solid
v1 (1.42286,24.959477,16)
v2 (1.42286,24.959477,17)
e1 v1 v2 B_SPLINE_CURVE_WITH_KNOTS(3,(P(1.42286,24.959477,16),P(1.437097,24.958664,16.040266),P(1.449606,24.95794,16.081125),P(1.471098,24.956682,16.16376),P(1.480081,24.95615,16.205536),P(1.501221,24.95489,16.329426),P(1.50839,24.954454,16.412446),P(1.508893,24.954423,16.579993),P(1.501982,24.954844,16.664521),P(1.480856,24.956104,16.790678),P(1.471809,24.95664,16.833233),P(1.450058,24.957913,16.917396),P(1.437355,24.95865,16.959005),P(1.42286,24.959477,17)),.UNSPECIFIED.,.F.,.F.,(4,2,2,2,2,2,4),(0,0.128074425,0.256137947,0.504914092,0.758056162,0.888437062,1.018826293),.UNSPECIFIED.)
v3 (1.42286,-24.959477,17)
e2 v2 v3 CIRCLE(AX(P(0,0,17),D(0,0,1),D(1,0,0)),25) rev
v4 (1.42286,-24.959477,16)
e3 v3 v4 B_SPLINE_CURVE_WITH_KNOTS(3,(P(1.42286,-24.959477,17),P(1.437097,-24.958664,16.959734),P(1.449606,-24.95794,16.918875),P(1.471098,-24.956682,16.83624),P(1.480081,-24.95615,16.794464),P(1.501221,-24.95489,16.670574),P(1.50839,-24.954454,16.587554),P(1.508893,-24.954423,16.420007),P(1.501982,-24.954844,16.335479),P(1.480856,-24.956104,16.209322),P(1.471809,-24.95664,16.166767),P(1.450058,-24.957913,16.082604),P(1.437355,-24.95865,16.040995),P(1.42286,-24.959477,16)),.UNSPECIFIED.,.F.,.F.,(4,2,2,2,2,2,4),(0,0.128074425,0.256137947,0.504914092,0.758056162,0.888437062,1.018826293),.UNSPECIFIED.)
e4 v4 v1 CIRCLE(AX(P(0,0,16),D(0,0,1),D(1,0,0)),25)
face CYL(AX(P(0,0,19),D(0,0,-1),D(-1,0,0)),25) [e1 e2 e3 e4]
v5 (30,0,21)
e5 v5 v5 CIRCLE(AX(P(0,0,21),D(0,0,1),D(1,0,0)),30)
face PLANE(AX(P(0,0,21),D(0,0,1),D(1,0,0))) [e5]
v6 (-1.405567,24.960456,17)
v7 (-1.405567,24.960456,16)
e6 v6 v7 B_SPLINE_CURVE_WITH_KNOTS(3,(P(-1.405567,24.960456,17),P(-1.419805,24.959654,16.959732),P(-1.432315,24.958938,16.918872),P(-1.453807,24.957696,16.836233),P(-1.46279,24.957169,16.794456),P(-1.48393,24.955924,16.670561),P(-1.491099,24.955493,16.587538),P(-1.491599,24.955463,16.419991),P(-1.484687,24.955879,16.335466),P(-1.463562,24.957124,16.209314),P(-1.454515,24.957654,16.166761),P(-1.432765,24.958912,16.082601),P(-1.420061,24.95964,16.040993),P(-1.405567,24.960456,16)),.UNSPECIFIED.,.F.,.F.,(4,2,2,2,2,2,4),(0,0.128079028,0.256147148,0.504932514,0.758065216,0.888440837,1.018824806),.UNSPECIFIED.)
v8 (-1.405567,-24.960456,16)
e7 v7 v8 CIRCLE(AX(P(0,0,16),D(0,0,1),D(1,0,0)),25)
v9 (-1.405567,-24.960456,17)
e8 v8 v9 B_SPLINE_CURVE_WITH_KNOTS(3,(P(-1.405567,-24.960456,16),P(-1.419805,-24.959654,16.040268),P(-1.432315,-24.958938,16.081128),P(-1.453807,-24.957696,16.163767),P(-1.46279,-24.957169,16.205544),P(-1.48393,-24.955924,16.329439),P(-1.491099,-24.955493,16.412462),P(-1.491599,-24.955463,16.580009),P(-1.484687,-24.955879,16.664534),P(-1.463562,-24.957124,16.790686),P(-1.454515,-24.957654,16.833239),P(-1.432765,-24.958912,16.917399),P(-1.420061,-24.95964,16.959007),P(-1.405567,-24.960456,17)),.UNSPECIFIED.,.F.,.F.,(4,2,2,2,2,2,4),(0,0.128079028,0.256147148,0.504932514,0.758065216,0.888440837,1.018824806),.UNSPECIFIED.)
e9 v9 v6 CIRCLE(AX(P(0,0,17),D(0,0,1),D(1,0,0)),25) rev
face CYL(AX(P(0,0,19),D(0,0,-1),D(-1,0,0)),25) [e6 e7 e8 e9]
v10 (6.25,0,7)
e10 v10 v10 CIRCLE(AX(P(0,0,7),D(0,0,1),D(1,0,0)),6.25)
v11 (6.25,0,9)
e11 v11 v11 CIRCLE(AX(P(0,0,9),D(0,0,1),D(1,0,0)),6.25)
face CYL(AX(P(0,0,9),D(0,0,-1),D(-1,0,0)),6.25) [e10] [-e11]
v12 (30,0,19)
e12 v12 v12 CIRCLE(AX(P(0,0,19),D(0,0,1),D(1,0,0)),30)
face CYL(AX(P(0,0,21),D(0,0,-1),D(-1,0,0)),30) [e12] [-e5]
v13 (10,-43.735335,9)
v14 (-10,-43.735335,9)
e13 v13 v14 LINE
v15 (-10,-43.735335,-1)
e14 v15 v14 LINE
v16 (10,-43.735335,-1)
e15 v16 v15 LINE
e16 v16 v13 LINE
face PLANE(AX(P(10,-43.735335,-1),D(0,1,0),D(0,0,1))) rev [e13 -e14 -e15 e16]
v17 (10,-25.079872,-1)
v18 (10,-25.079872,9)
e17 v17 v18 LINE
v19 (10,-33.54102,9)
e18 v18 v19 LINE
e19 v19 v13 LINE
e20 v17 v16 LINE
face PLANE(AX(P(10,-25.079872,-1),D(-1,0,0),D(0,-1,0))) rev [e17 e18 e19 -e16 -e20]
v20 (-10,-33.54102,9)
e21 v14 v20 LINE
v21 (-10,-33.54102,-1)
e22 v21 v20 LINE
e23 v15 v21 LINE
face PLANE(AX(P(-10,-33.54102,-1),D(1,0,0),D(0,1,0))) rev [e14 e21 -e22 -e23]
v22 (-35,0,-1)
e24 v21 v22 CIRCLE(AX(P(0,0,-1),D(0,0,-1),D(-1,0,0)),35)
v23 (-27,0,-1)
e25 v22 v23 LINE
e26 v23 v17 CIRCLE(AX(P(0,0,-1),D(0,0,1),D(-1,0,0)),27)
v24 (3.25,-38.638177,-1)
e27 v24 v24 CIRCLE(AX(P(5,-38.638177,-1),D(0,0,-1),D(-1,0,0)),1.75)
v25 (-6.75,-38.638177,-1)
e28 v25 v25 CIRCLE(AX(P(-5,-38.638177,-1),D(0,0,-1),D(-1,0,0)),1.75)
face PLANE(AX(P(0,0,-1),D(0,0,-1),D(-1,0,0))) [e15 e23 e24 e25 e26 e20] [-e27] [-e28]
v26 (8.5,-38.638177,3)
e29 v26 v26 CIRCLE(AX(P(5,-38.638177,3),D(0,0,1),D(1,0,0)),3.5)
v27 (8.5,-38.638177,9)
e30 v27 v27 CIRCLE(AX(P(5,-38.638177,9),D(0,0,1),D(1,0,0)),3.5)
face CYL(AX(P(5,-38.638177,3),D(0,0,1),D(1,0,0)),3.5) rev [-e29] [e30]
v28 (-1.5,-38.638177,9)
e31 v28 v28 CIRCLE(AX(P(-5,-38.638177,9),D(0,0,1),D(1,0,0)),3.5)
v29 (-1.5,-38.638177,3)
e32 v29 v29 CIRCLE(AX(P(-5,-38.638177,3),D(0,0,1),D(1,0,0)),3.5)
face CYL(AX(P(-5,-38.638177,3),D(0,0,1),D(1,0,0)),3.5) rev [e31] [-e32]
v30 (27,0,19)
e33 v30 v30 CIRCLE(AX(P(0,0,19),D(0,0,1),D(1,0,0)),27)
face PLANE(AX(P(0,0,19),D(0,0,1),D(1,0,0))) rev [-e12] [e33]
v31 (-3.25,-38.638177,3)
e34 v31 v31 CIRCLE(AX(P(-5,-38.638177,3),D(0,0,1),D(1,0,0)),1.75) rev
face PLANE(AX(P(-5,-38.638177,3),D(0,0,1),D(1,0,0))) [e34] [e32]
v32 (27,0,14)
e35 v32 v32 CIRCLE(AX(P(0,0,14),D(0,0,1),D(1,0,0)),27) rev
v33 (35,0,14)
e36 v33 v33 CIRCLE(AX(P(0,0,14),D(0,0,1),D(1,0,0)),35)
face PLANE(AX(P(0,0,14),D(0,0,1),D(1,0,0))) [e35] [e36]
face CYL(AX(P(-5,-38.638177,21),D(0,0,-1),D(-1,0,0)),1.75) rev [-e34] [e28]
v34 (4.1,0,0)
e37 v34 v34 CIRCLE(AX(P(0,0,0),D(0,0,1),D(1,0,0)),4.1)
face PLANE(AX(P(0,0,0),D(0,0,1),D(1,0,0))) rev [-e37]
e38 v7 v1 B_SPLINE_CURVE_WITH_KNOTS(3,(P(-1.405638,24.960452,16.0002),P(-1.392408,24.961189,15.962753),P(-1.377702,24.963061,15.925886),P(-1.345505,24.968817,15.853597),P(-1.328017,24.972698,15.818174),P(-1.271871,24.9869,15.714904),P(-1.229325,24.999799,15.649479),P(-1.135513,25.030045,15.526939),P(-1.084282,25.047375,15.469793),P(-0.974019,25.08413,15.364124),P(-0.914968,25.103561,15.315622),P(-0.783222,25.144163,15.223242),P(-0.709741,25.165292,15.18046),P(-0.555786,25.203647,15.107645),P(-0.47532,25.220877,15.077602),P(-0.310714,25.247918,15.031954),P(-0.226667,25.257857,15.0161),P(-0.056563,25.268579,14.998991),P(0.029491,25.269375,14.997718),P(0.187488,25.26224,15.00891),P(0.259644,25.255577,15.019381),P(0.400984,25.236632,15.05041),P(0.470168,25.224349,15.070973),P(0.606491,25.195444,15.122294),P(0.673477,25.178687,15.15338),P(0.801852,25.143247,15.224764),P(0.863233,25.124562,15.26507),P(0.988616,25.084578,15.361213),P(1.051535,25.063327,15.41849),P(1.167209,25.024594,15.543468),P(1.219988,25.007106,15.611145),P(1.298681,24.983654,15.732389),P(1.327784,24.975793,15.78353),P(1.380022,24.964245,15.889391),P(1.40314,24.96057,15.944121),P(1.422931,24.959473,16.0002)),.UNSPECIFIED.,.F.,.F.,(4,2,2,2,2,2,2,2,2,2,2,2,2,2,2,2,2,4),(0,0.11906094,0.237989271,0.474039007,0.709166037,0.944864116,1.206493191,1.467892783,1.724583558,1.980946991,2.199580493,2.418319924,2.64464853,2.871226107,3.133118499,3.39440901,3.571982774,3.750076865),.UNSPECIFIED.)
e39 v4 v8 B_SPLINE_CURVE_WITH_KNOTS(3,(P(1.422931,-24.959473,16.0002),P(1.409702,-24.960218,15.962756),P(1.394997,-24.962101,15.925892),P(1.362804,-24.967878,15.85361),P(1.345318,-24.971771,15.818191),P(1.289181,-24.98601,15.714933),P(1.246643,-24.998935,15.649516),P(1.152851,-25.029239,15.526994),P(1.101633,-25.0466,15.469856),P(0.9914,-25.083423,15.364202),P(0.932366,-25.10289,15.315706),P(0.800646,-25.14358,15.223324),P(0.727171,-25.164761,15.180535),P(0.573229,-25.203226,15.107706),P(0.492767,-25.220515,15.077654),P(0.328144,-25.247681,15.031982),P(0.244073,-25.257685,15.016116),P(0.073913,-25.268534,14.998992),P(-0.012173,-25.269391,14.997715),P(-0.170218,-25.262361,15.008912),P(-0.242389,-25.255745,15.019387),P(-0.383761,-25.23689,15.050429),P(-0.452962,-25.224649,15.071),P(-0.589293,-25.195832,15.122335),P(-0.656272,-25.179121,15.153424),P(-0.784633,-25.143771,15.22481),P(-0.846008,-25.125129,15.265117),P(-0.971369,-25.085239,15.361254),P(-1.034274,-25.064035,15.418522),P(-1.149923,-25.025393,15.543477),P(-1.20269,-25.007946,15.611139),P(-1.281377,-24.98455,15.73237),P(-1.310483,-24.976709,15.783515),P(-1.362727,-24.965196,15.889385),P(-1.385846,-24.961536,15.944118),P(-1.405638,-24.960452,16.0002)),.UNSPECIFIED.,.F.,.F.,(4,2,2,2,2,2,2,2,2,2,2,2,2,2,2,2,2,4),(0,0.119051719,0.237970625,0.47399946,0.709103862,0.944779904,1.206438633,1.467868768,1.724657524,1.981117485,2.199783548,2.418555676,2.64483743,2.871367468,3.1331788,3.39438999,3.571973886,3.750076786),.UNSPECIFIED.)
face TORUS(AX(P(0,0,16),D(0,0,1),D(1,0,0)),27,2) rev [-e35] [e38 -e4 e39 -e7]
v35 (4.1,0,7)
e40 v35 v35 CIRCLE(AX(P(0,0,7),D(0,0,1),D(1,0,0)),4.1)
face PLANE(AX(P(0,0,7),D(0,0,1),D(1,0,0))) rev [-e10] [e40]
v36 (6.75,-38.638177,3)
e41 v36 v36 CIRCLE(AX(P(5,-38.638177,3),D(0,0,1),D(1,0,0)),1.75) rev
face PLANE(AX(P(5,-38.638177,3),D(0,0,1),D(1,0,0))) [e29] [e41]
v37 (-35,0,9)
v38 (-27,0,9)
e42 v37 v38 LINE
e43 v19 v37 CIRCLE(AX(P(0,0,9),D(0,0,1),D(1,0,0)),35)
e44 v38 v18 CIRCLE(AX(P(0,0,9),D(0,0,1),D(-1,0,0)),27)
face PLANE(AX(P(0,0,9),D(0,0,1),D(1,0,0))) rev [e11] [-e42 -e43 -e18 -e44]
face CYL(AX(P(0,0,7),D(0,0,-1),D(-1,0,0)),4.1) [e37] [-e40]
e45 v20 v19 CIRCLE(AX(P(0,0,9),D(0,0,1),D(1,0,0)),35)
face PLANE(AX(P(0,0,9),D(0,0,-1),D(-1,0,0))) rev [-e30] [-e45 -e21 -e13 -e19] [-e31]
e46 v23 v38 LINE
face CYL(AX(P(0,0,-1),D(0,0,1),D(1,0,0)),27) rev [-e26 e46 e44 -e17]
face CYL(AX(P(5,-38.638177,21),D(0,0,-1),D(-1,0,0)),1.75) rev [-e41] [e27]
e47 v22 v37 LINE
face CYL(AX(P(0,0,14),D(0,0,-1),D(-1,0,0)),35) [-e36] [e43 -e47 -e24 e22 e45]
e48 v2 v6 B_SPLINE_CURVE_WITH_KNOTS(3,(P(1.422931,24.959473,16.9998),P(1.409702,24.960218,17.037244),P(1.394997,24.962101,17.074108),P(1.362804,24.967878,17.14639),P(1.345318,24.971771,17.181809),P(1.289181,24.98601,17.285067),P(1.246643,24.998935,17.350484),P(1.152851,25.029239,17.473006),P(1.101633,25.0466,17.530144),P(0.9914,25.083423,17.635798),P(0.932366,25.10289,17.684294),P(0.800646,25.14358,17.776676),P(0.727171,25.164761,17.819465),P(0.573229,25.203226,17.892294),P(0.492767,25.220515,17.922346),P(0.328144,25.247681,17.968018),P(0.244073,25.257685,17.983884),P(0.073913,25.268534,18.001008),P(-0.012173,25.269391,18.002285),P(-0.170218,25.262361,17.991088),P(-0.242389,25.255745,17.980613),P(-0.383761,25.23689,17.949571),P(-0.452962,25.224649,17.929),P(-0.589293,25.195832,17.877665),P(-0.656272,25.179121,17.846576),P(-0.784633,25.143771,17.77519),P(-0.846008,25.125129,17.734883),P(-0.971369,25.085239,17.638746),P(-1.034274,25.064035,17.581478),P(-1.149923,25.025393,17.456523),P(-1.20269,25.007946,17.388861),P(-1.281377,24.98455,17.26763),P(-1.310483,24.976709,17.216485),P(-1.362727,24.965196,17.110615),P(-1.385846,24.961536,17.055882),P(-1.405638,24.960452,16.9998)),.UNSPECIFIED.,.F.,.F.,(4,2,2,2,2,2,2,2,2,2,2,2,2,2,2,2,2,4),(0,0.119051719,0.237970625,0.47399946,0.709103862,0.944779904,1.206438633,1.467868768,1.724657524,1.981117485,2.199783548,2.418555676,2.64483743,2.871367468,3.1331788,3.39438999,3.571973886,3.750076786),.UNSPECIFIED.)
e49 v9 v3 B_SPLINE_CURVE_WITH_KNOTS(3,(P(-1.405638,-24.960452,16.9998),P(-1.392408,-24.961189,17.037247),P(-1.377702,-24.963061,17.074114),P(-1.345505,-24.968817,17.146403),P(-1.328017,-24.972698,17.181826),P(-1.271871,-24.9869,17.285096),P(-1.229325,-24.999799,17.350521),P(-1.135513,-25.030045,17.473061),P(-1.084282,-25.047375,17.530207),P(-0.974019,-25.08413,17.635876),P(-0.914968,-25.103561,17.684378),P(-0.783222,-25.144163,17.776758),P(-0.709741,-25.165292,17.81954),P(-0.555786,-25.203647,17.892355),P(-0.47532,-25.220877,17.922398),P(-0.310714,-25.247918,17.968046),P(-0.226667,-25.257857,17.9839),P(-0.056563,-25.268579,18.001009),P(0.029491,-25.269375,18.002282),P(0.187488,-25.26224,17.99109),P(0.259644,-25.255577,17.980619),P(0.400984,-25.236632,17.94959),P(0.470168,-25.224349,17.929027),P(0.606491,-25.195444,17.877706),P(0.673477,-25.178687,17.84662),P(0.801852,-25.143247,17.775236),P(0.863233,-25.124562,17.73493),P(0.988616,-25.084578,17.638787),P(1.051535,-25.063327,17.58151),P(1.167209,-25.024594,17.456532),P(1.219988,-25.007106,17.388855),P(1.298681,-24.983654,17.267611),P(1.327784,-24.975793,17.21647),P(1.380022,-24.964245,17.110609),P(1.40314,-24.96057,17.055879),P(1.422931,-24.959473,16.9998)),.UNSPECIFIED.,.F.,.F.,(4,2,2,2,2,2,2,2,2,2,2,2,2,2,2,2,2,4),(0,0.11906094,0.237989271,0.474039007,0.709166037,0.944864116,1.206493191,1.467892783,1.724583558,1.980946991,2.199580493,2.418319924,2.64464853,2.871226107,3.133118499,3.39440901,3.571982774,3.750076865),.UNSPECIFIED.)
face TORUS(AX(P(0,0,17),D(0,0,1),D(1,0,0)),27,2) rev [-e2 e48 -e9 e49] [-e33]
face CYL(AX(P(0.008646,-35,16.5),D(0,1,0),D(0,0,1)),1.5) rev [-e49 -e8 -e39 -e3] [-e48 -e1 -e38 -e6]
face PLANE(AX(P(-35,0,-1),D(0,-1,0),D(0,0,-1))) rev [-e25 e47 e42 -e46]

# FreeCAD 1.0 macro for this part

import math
import FreeCAD as App
import Part
import Sketcher


def edges_at(feature, points):
    """Names of the edges that pass closest to the given points."""
    edges = feature.Shape.Edges
    near = lambda p: min(range(len(edges)), key=lambda i: edges[i].distToShape(Part.Vertex(*p))[0])
    return sorted({f"Edge{near(p) + 1}" for p in points})

doc = App.newDocument("Part")
body = doc.addObject("PartDesign::Body", "Body")

# Sketch on XY plane
sketch1 = doc.addObject("Sketcher::SketchObject", "Sketch")
body.addObject(sketch1)
sketch1.AttachmentSupport = (doc.XY_Plane, [""])
sketch1.MapMode = "FlatFace"
sketch1.addGeometry(Part.Circle(App.Vector(0, 0, 0), App.Vector(0, 0, 1), 4.1), False)
sketch1.addConstraint([
    Sketcher.Constraint("Coincident", 0, 3, -1, 1),
    Sketcher.Constraint("Diameter", 0, 8.2),
])
pad1 = doc.addObject("PartDesign::Pad", "Pad")
body.addObject(pad1)
pad1.Profile = sketch1
pad1.Length = 7

# Sketch on XY plane
sketch2 = doc.addObject("Sketcher::SketchObject", "Sketch001")
body.addObject(sketch2)
sketch2.AttachmentSupport = (doc.XY_Plane, [""])
sketch2.MapMode = "FlatFace"
sketch2.AttachmentOffset = App.Placement(App.Vector(0, 0, 7), App.Rotation())
sketch2.addGeometry(Part.Circle(App.Vector(0, 0, 0), App.Vector(0, 0, 1), 6.25), False)
sketch2.addConstraint([
    Sketcher.Constraint("Coincident", 0, 3, -1, 1),
    Sketcher.Constraint("Diameter", 0, 12.5),
])
pad2 = doc.addObject("PartDesign::Pad", "Pad001")
body.addObject(pad2)
pad2.Profile = sketch2
pad2.Length = 2

# Sketch on XY plane
sketch3 = doc.addObject("Sketcher::SketchObject", "Sketch002")
body.addObject(sketch3)
sketch3.AttachmentSupport = (doc.XY_Plane, [""])
sketch3.MapMode = "FlatFace"
sketch3.AttachmentOffset = App.Placement(App.Vector(0, 0, 9), App.Rotation())
sketch3.addGeometry(Part.Circle(App.Vector(0, 0, 0), App.Vector(0, 0, 1), 35), False)
sketch3.addConstraint([
    Sketcher.Constraint("Coincident", 0, 3, -1, 1),
    Sketcher.Constraint("Diameter", 0, 70.0),
])
pad3 = doc.addObject("PartDesign::Pad", "Pad002")
body.addObject(pad3)
pad3.Profile = sketch3
pad3.Length = 5

# Sketch on XY plane
sketch4 = doc.addObject("Sketcher::SketchObject", "Sketch003")
body.addObject(sketch4)
sketch4.AttachmentSupport = (doc.XY_Plane, [""])
sketch4.MapMode = "FlatFace"
sketch4.AttachmentOffset = App.Placement(App.Vector(0, 0, 14), App.Rotation())
sketch4.addGeometry(Part.Circle(App.Vector(0, 0, 0), App.Vector(0, 0, 1), 25), False)
sketch4.addConstraint([
    Sketcher.Constraint("Coincident", 0, 3, -1, 1),
    Sketcher.Constraint("Diameter", 0, 50.0),
])
pad4 = doc.addObject("PartDesign::Pad", "Pad003")
body.addObject(pad4)
pad4.Profile = sketch4
pad4.Length = 5

# Sketch on XY plane
sketch5 = doc.addObject("Sketcher::SketchObject", "Sketch004")
body.addObject(sketch5)
sketch5.AttachmentSupport = (doc.XY_Plane, [""])
sketch5.MapMode = "FlatFace"
sketch5.AttachmentOffset = App.Placement(App.Vector(0, 0, 19), App.Rotation())
sketch5.addGeometry(Part.Circle(App.Vector(0, 0, 0), App.Vector(0, 0, 1), 30), False)
sketch5.addConstraint([
    Sketcher.Constraint("Coincident", 0, 3, -1, 1),
    Sketcher.Constraint("Diameter", 0, 60.0),
])
pad5 = doc.addObject("PartDesign::Pad", "Pad004")
body.addObject(pad5)
pad5.Profile = sketch5
pad5.Length = 2
doc.recompute()

fillet = doc.addObject("PartDesign::Fillet", "Fillet")
body.addObject(fillet)
fillet.Base = (pad5, edges_at(pad5, [(-25, 0, 19)]))
fillet.Radius = 2
doc.recompute()

fillet2 = doc.addObject("PartDesign::Fillet", "Fillet001")
body.addObject(fillet2)
fillet2.Base = (fillet, edges_at(fillet, [(-25, 0, 14)]))
fillet2.Radius = 2

# Sketch on XZ plane
sketch6 = doc.addObject("Sketcher::SketchObject", "Sketch005")
body.addObject(sketch6)
sketch6.AttachmentSupport = (doc.XZ_Plane, [""])
sketch6.MapMode = "FlatFace"
sketch6.addGeometry(Part.Circle(App.Vector(0.008646, 16.5, 0), App.Vector(0, 0, 1), 1.5), False)
sketch6.addConstraint([
    Sketcher.Constraint("Diameter", 0, 3.0),
    Sketcher.Constraint("DistanceY", -1, 1, 0, 3, 16.5),
    Sketcher.Constraint("DistanceX", -1, 1, 0, 3, 0.008646),
])
pocket1 = doc.addObject("PartDesign::Pocket", "Pocket")
body.addObject(pocket1)
pocket1.Profile = sketch6
pocket1.Type = "ThroughAll"
pocket1.Midplane = True

# Sketch on XY plane
sketch7 = doc.addObject("Sketcher::SketchObject", "Sketch006")
body.addObject(sketch7)
sketch7.AttachmentSupport = (doc.XY_Plane, [""])
sketch7.MapMode = "FlatFace"
sketch7.AttachmentOffset = App.Placement(App.Vector(0, 0, 9), App.Rotation())
sketch7.addGeometry([
    Part.LineSegment(App.Vector(-35, 0, 0), App.Vector(-27, 0, 0)),  # 0
    Part.ArcOfCircle(Part.Circle(App.Vector(0, 0, 0), App.Vector(0, 0, 1), 27), math.radians(180), math.radians(291.738461)),  # 1
    Part.LineSegment(App.Vector(10, -25.079872, 0), App.Vector(10, -43.735335, 0)),  # 2
    Part.LineSegment(App.Vector(10, -43.735335, 0), App.Vector(-10, -43.735335, 0)),  # 3
    Part.LineSegment(App.Vector(-10, -43.735335, 0), App.Vector(-10, -33.54102, 0)),  # 4
    Part.ArcOfCircle(Part.Circle(App.Vector(0, 0, 0), App.Vector(0, 0, 1), 35), math.radians(180), math.radians(253.39845)),  # 5
], False)
sketch7.addConstraint([
    Sketcher.Constraint("Coincident", 0, 2, 1, 1),
    Sketcher.Constraint("Coincident", 1, 2, 2, 1),
    Sketcher.Constraint("Coincident", 2, 2, 3, 1),
    Sketcher.Constraint("Coincident", 3, 2, 4, 1),
    Sketcher.Constraint("Coincident", 4, 2, 5, 2),
    Sketcher.Constraint("Coincident", 5, 1, 0, 1),
    Sketcher.Constraint("Horizontal", 0),
    Sketcher.Constraint("Vertical", 2),
    Sketcher.Constraint("Horizontal", 3),
    Sketcher.Constraint("Vertical", 4),
    Sketcher.Constraint("Coincident", 1, 3, -1, 1),
    Sketcher.Constraint("Coincident", 5, 3, -1, 1),
    Sketcher.Constraint("PointOnObject", 0, 2, -1),
    Sketcher.Constraint("Radius", 1, 27.0),
    Sketcher.Constraint("Radius", 5, 35.0),
    Sketcher.Constraint("DistanceX", 3, 2, 3, 1, 20.0),
    Sketcher.Constraint("DistanceX", -1, 1, 1, 2, 10.0),
    Sketcher.Constraint("DistanceY", 2, 2, 2, 1, 18.655462),
])
pad6 = doc.addObject("PartDesign::Pad", "Pad005")
body.addObject(pad6)
pad6.Profile = sketch7
pad6.Length = 10
pad6.Reversed = True

# Sketch on XY plane
sketch8 = doc.addObject("Sketcher::SketchObject", "Sketch007")
body.addObject(sketch8)
sketch8.AttachmentSupport = (doc.XY_Plane, [""])
sketch8.MapMode = "FlatFace"
sketch8.AttachmentOffset = App.Placement(App.Vector(0, 0, -1), App.Rotation())
sketch8.addGeometry([
    Part.Circle(App.Vector(-5, -38.638177, 0), App.Vector(0, 0, 1), 1.75),
    Part.Circle(App.Vector(5, -38.638177, 0), App.Vector(0, 0, 1), 1.75),
], False)
sketch8.addConstraint([
    Sketcher.Constraint("Equal", 0, 1),
    Sketcher.Constraint("Symmetric", 0, 3, 1, 3, -2),
    Sketcher.Constraint("Diameter", 0, 3.5),
    Sketcher.Constraint("DistanceX", 0, 3, -1, 1, 5.0),
    Sketcher.Constraint("DistanceY", 0, 3, -1, 1, 38.638177),
])
pocket2 = doc.addObject("PartDesign::Pocket", "Pocket001")
body.addObject(pocket2)
pocket2.Profile = sketch8
pocket2.Type = "ThroughAll"
pocket2.Midplane = True

# Sketch on XY plane
sketch9 = doc.addObject("Sketcher::SketchObject", "Sketch008")
body.addObject(sketch9)
sketch9.AttachmentSupport = (doc.XY_Plane, [""])
sketch9.MapMode = "FlatFace"
sketch9.AttachmentOffset = App.Placement(App.Vector(0, 0, 9), App.Rotation())
sketch9.addGeometry([
    Part.Circle(App.Vector(-5, -38.638177, 0), App.Vector(0, 0, 1), 3.5),
    Part.Circle(App.Vector(5, -38.638177, 0), App.Vector(0, 0, 1), 3.5),
], False)
sketch9.addConstraint([
    Sketcher.Constraint("Equal", 0, 1),
    Sketcher.Constraint("Symmetric", 0, 3, 1, 3, -2),
    Sketcher.Constraint("Diameter", 0, 7.0),
    Sketcher.Constraint("DistanceX", 0, 3, -1, 1, 5.0),
    Sketcher.Constraint("DistanceY", 0, 3, -1, 1, 38.638177),
])
pocket3 = doc.addObject("PartDesign::Pocket", "Pocket002")
body.addObject(pocket3)
pocket3.Profile = sketch9
pocket3.Length = 6

doc.recompute()
